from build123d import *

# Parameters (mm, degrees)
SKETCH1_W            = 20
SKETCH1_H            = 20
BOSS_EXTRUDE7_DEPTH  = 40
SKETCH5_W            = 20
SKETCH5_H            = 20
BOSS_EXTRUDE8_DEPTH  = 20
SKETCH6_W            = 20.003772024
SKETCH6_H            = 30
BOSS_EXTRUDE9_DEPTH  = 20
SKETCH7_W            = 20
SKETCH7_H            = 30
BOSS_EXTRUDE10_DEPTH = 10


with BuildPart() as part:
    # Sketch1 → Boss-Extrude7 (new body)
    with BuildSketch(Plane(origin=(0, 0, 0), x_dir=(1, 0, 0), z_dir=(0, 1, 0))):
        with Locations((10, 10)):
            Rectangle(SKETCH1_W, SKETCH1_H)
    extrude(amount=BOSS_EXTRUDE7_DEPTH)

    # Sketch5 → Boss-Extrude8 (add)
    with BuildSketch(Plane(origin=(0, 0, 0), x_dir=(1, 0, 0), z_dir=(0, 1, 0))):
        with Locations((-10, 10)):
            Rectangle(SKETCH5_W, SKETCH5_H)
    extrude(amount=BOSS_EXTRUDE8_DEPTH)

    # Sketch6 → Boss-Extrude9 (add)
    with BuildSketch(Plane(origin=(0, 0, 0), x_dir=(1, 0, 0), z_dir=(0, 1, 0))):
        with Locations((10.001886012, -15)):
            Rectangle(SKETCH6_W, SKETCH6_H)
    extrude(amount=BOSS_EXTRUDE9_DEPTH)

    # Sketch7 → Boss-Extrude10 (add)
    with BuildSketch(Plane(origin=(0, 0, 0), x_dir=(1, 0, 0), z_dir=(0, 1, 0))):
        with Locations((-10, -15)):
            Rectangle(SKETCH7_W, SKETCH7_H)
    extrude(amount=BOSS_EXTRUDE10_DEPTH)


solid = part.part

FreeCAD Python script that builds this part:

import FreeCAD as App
import Part
import Sketcher
Q = App.Units.Quantity

doc = App.newDocument("Part")
body = doc.addObject("PartDesign::Body", "Body")

# Sketch on XZ plane
sketch1 = body.newObject("Sketcher::SketchObject", "Sketch")
sketch1.AttachmentSupport = (doc.getObject("XZ_Plane"), [""])
sketch1.MapMode = "FlatFace"
sketch1.addGeometry(Part.LineSegment(App.Vector(0, -20, 0), App.Vector(0, 0, 0)), False)
sketch1.addGeometry(Part.LineSegment(App.Vector(0, 0, 0), App.Vector(20, 0, 0)), False)
sketch1.addGeometry(Part.LineSegment(App.Vector(20, 0, 0), App.Vector(20, -20, 0)), False)
sketch1.addGeometry(Part.LineSegment(App.Vector(20, -20, 0), App.Vector(0, -20, 0)), False)
sketch1.addConstraint(Sketcher.Constraint("Coincident", 0, 2, 1, 1))
sketch1.addConstraint(Sketcher.Constraint("Coincident", 1, 2, 2, 1))
sketch1.addConstraint(Sketcher.Constraint("Coincident", 2, 2, 3, 1))
sketch1.addConstraint(Sketcher.Constraint("Coincident", 3, 2, 0, 1))
sketch1.addConstraint(Sketcher.Constraint("Vertical", 0))
sketch1.addConstraint(Sketcher.Constraint("Horizontal", 1))
sketch1.addConstraint(Sketcher.Constraint("Vertical", 2))
sketch1.addConstraint(Sketcher.Constraint("Horizontal", 3))
sketch1.addConstraint(Sketcher.Constraint("Coincident", 0, 2, -1, 1))
sketch1.addConstraint(Sketcher.Constraint("Equal", 3, 0))
sketch1.addConstraint(Sketcher.Constraint("DistanceX", 1, 1, 1, 2, Q("20 mm")))
pad1 = body.newObject("PartDesign::Pad", "Pad")
pad1.Profile = sketch1
pad1.Length = 40
pad1.Reversed = True

# Sketch on XZ plane
sketch2 = body.newObject("Sketcher::SketchObject", "Sketch001")
sketch2.AttachmentSupport = (doc.getObject("XZ_Plane"), [""])
sketch2.MapMode = "FlatFace"
sketch2.addGeometry(Part.LineSegment(App.Vector(-20, -20, 0), App.Vector(-20, 0, 0)), False)
sketch2.addGeometry(Part.LineSegment(App.Vector(-20, 0, 0), App.Vector(0, 0, 0)), False)
sketch2.addGeometry(Part.LineSegment(App.Vector(0, 0, 0), App.Vector(0, -20, 0)), False)
sketch2.addGeometry(Part.LineSegment(App.Vector(0, -20, 0), App.Vector(-20, -20, 0)), False)
sketch2.addConstraint(Sketcher.Constraint("Coincident", 0, 2, 1, 1))
sketch2.addConstraint(Sketcher.Constraint("Coincident", 1, 2, 2, 1))
sketch2.addConstraint(Sketcher.Constraint("Coincident", 2, 2, 3, 1))
sketch2.addConstraint(Sketcher.Constraint("Coincident", 3, 2, 0, 1))
sketch2.addConstraint(Sketcher.Constraint("Vertical", 0))
sketch2.addConstraint(Sketcher.Constraint("Horizontal", 1))
sketch2.addConstraint(Sketcher.Constraint("Vertical", 2))
sketch2.addConstraint(Sketcher.Constraint("Horizontal", 3))
sketch2.addConstraint(Sketcher.Constraint("Coincident", 1, 2, -1, 1))
sketch2.addConstraint(Sketcher.Constraint("Equal", 3, 0))
sketch2.addConstraint(Sketcher.Constraint("DistanceX", 1, 1, 1, 2, Q("20 mm")))
pad2 = body.newObject("PartDesign::Pad", "Pad001")
pad2.Profile = sketch2
pad2.Length = 20
pad2.Reversed = True

# Sketch on XZ plane
sketch3 = body.newObject("Sketcher::SketchObject", "Sketch002")
sketch3.AttachmentSupport = (doc.getObject("XZ_Plane"), [""])
sketch3.MapMode = "FlatFace"
sketch3.addGeometry(Part.LineSegment(App.Vector(0, 0, 0), App.Vector(0, 30, 0)), False)
sketch3.addGeometry(Part.LineSegment(App.Vector(0, 30, 0), App.Vector(20.003772, 30, 0)), False)
sketch3.addGeometry(Part.LineSegment(App.Vector(20.003772, 30, 0), App.Vector(20.003772, 0, 0)), False)
sketch3.addGeometry(Part.LineSegment(App.Vector(20.003772, 0, 0), App.Vector(0, 0, 0)), False)
sketch3.addConstraint(Sketcher.Constraint("Coincident", 0, 2, 1, 1))
sketch3.addConstraint(Sketcher.Constraint("Coincident", 1, 2, 2, 1))
sketch3.addConstraint(Sketcher.Constraint("Coincident", 2, 2, 3, 1))
sketch3.addConstraint(Sketcher.Constraint("Coincident", 3, 2, 0, 1))
sketch3.addConstraint(Sketcher.Constraint("Vertical", 0))
sketch3.addConstraint(Sketcher.Constraint("Horizontal", 1))
sketch3.addConstraint(Sketcher.Constraint("Vertical", 2))
sketch3.addConstraint(Sketcher.Constraint("Horizontal", 3))
sketch3.addConstraint(Sketcher.Constraint("Coincident", 3, 2, -1, 1))
sketch3.addConstraint(Sketcher.Constraint("DistanceY", 0, 1, 0, 2, Q("30 mm")))
sketch3.addConstraint(Sketcher.Constraint("DistanceX", 1, 1, 1, 2, Q("20.003772 mm")))
pad3 = body.newObject("PartDesign::Pad", "Pad002")
pad3.Profile = sketch3
pad3.Length = 20
pad3.Reversed = True

# Sketch on XZ plane
sketch4 = body.newObject("Sketcher::SketchObject", "Sketch003")
sketch4.AttachmentSupport = (doc.getObject("XZ_Plane"), [""])
sketch4.MapMode = "FlatFace"
sketch4.addGeometry(Part.LineSegment(App.Vector(-20, 0, 0), App.Vector(-20, 30, 0)), False)
sketch4.addGeometry(Part.LineSegment(App.Vector(-20, 30, 0), App.Vector(0, 30, 0)), False)
sketch4.addGeometry(Part.LineSegment(App.Vector(0, 30, 0), App.Vector(0, 0, 0)), False)
sketch4.addGeometry(Part.LineSegment(App.Vector(0, 0, 0), App.Vector(-20, 0, 0)), False)
sketch4.addConstraint(Sketcher.Constraint("Coincident", 0, 2, 1, 1))
sketch4.addConstraint(Sketcher.Constraint("Coincident", 1, 2, 2, 1))
sketch4.addConstraint(Sketcher.Constraint("Coincident", 2, 2, 3, 1))
sketch4.addConstraint(Sketcher.Constraint("Coincident", 3, 2, 0, 1))
sketch4.addConstraint(Sketcher.Constraint("Vertical", 0))
sketch4.addConstraint(Sketcher.Constraint("Horizontal", 1))
sketch4.addConstraint(Sketcher.Constraint("Vertical", 2))
sketch4.addConstraint(Sketcher.Constraint("Horizontal", 3))
sketch4.addConstraint(Sketcher.Constraint("Coincident", 2, 2, -1, 1))
sketch4.addConstraint(Sketcher.Constraint("DistanceX", 1, 1, 1, 2, Q("20 mm")))
sketch4.addConstraint(Sketcher.Constraint("DistanceY", 0, 1, 0, 2, Q("30 mm")))
pad4 = body.newObject("PartDesign::Pad", "Pad003")
pad4.Profile = sketch4
pad4.Length = 10
pad4.Reversed = True

doc.recompute()
